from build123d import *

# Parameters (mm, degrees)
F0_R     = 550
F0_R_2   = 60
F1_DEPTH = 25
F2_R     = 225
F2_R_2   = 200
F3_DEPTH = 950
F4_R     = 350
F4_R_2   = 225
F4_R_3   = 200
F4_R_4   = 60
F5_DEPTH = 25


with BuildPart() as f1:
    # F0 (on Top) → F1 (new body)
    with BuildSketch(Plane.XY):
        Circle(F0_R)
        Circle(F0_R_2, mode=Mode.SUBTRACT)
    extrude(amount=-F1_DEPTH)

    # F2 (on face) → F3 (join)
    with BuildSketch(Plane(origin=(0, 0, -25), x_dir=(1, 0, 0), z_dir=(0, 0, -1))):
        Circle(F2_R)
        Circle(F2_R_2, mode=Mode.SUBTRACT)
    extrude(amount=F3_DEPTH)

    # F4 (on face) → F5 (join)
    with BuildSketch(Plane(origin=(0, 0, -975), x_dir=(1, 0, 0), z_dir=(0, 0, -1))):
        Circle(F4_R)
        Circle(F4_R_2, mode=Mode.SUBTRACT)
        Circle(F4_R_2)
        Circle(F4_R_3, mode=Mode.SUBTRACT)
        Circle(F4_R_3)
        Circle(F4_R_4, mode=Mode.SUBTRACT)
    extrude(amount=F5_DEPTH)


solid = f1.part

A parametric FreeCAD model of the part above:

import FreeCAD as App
import Part
import Sketcher

V = App.Vector

doc = App.newDocument("Part")
params = doc.addObject("Spreadsheet::Sheet", "Params")
for row, (alias, value) in enumerate([
    ("sketch1_diameter", "1100 mm"),
    ("sketch1_diameter2", "120 mm"),
    ("pad1_length", "25 mm"),
    ("sketch2_diameter", "450 mm"),
    ("sketch2_diameter2", "400 mm"),
    ("pad2_length", "950 mm"),
    ("sketch3_diameter", "700 mm"),
    ("sketch3_diameter2", "120 mm"),
    ("pad3_length", "25 mm"),
], start=1):
    params.set(f"A{row}", alias)
    params.set(f"B{row}", "=" + value)
    params.setAlias(f"B{row}", alias)

body = doc.addObject("PartDesign::Body", "Body")

# Sketch on XY plane
sketch1 = body.newObject("Sketcher::SketchObject", "Sketch")
sketch1.AttachmentSupport = (doc.getObject("XY_Plane"), [""])
sketch1.MapMode = "FlatFace"
sketch1.addGeometry([
    Part.Circle(V(0, 0, 0), V(0, 0, 1), 550),
    Part.Circle(V(0, 0, 0), V(0, 0, 1), 60),
], False)
sketch1.addConstraint([
    Sketcher.Constraint("Coincident", 0, 3, -1, 1),
    Sketcher.Constraint("Coincident", 1, 3, -1, 1),
    Sketcher.Constraint("Diameter", 0, 1100.0),
    Sketcher.Constraint("Diameter", 1, 120.0),
])
sketch1.setExpression("Constraints[2]", "Params.sketch1_diameter")
sketch1.setExpression("Constraints[3]", "Params.sketch1_diameter2")
pad1 = body.newObject("PartDesign::Pad", "Pad")
pad1.Profile = sketch1
pad1.setExpression("Length", "Params.pad1_length")
pad1.Reversed = True

# Sketch on XY plane
sketch2 = body.newObject("Sketcher::SketchObject", "Sketch001")
sketch2.AttachmentSupport = (doc.getObject("XY_Plane"), [""])
sketch2.MapMode = "FlatFace"
sketch2.AttachmentOffset = App.Placement(V(0, 0, -25), App.Rotation())
sketch2.addGeometry([
    Part.Circle(V(0, 0, 0), V(0, 0, 1), 225),
    Part.Circle(V(0, 0, 0), V(0, 0, 1), 200),
], False)
sketch2.addConstraint([
    Sketcher.Constraint("Coincident", 0, 3, -1, 1),
    Sketcher.Constraint("Coincident", 1, 3, -1, 1),
    Sketcher.Constraint("Diameter", 0, 450.0),
    Sketcher.Constraint("Diameter", 1, 400.0),
])
sketch2.setExpression("Constraints[2]", "Params.sketch2_diameter")
sketch2.setExpression("Constraints[3]", "Params.sketch2_diameter2")
pad2 = body.newObject("PartDesign::Pad", "Pad001")
pad2.Profile = sketch2
pad2.setExpression("Length", "Params.pad2_length")
pad2.Reversed = True

# Sketch on XY plane
sketch3 = body.newObject("Sketcher::SketchObject", "Sketch002")
sketch3.AttachmentSupport = (doc.getObject("XY_Plane"), [""])
sketch3.MapMode = "FlatFace"
sketch3.AttachmentOffset = App.Placement(V(0, 0, -975), App.Rotation())
sketch3.addGeometry([
    Part.Circle(V(0, 0, 0), V(0, 0, 1), 350),
    Part.Circle(V(0, 0, 0), V(0, 0, 1), 60),
], False)
sketch3.addConstraint([
    Sketcher.Constraint("Coincident", 0, 3, -1, 1),
    Sketcher.Constraint("Coincident", 1, 3, -1, 1),
    Sketcher.Constraint("Diameter", 0, 700.0),
    Sketcher.Constraint("Diameter", 1, 120.0),
])
sketch3.setExpression("Constraints[2]", "Params.sketch3_diameter")
sketch3.setExpression("Constraints[3]", "Params.sketch3_diameter2")
pad3 = body.newObject("PartDesign::Pad", "Pad002")
pad3.Profile = sketch3
pad3.setExpression("Length", "Params.pad3_length")
pad3.Reversed = True

doc.recompute()
